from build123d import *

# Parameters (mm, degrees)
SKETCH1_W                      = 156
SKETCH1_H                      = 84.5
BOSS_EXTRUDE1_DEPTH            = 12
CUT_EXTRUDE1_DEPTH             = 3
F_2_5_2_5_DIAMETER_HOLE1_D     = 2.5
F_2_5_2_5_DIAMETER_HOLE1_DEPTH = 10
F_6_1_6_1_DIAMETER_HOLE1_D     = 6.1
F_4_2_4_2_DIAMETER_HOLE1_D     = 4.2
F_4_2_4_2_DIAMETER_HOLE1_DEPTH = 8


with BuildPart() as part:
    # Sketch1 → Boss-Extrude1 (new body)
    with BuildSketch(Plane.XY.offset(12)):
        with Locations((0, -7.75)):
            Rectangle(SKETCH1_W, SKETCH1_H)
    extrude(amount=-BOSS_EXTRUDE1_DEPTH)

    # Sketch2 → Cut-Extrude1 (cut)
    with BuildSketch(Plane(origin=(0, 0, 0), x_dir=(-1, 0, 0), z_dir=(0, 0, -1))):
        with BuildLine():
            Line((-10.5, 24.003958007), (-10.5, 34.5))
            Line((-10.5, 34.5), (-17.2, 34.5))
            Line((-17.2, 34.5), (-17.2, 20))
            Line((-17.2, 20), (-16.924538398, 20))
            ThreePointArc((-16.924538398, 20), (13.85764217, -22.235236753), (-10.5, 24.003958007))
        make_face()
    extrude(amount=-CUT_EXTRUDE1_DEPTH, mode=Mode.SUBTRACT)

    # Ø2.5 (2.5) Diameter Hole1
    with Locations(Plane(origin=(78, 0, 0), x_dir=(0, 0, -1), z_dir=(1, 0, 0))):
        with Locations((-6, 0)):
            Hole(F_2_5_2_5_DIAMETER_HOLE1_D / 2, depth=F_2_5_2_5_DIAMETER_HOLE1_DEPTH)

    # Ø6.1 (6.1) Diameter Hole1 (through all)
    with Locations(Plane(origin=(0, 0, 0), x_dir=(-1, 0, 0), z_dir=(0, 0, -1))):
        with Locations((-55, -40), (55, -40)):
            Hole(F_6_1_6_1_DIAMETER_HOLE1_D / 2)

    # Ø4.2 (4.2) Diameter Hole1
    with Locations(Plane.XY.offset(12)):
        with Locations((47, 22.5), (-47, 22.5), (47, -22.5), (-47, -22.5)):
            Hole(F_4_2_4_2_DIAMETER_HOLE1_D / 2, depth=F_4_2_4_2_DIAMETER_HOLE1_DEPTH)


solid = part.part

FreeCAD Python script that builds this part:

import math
import FreeCAD as App
import Part
import Sketcher
from FreeCAD import Vector

doc = App.newDocument("Part")
body = doc.addObject("PartDesign::Body", "Body")

# Sketch on XY plane
sketch1 = body.newObject("Sketcher::SketchObject", "Sketch")
sketch1.AttachmentSupport = (doc.getObject("XY_Plane"), [""])
sketch1.MapMode = "FlatFace"
sketch1.AttachmentOffset = App.Placement(Vector(0, 0, 12), App.Rotation())
sketch1.addGeometry([
    Part.LineSegment(Vector(-78, 34, 0), Vector(-78, -50, 0)),
    Part.LineSegment(Vector(-78, -50, 0), Vector(78, -50, 0)),
    Part.LineSegment(Vector(78, -50, 0), Vector(78, 34, 0)),
    Part.LineSegment(Vector(78, 34, 0), Vector(-78, 34, 0)),
], False)
sketch1.addConstraint([
    Sketcher.Constraint("Coincident", 0, 2, 1, 1),
    Sketcher.Constraint("Coincident", 1, 2, 2, 1),
    Sketcher.Constraint("Coincident", 2, 2, 3, 1),
    Sketcher.Constraint("Coincident", 3, 2, 0, 1),
    Sketcher.Constraint("Vertical", 0),
    Sketcher.Constraint("Horizontal", 1),
    Sketcher.Constraint("Vertical", 2),
    Sketcher.Constraint("Horizontal", 3),
    Sketcher.Constraint("DistanceX", 1, 1, 1, 2, 156.0),
    Sketcher.Constraint("DistanceY", 0, 2, 0, 1, 84.5),
    Sketcher.Constraint("DistanceX", 0, 2, -1, 1, 78.0),
    Sketcher.Constraint("DistanceY", 0, 2, -1, 1, 50.0),
])
pad1 = body.newObject("PartDesign::Pad", "Pad")
pad1.Profile = sketch1
pad1.Length = 12
pad1.Reversed = True

# Sketch on XY plane
sketch2 = body.newObject("Sketcher::SketchObject", "Sketch001")
sketch2.AttachmentSupport = (doc.getObject("XY_Plane"), [""])
sketch2.MapMode = "FlatFace"
sketch2.addGeometry([
    Part.LineSegment(Vector(10.5, 24, 0), Vector(10.5, 34.5, 0)),  # 0
    Part.LineSegment(Vector(10.5, 34.5, 0), Vector(17.2, 34.5, 0)),  # 1
    Part.LineSegment(Vector(17.2, 34.5, 0), Vector(17.2, 20, 0)),  # 2
    Part.LineSegment(Vector(17.2, 20, 0), Vector(16.92, 20, 0)),  # 3
    Part.ArcOfCircle(Part.Circle(Vector(0, 0, 0), Vector(0, 0, 1), 26.2), math.radians(66), math.radians(410)),  # 4
], False)
sketch2.addConstraint([
    Sketcher.Constraint("Coincident", 0, 2, 1, 1),
    Sketcher.Constraint("Coincident", 1, 2, 2, 1),
    Sketcher.Constraint("Coincident", 2, 2, 3, 1),
    Sketcher.Constraint("Coincident", 3, 2, 4, 2),
    Sketcher.Constraint("Coincident", 4, 1, 0, 1),
    Sketcher.Constraint("Vertical", 0),
    Sketcher.Constraint("Horizontal", 1),
    Sketcher.Constraint("Vertical", 2),
    Sketcher.Constraint("Horizontal", 3),
    Sketcher.Constraint("Coincident", 4, 3, -1, 1),
    Sketcher.Constraint("Radius", 4, 26.2),
    Sketcher.Constraint("DistanceX", 1, 1, 1, 2, 6.7),
    Sketcher.Constraint("DistanceY", 2, 2, 2, 1, 14.5),
    Sketcher.Constraint("DistanceY", -1, 1, 2, 2, 20.0),
    Sketcher.Constraint("DistanceX", -1, 1, 0, 2, 10.5),
])
pocket1 = body.newObject("PartDesign::Pocket", "Pocket")
pocket1.Profile = sketch2
pocket1.Length = 3
pocket1.Reversed = True

# Sketch on YZ plane
sketch3 = body.newObject("Sketcher::SketchObject", "Sketch002")
sketch3.AttachmentSupport = (doc.getObject("YZ_Plane"), [""])
sketch3.MapMode = "FlatFace"
sketch3.AttachmentOffset = App.Placement(Vector(0, 0, 78), App.Rotation())
sketch3.addGeometry(Part.Circle(Vector(0, 6, 0), Vector(0, 0, 1), 1.2), False)
sketch3.addConstraint([
    Sketcher.Constraint("PointOnObject", 0, 3, -2),
    Sketcher.Constraint("Diameter", 0, 2.5),
    Sketcher.Constraint("DistanceY", -1, 1, 0, 3, 6.0),
])
doc.recompute()
hole = body.newObject("PartDesign::Hole", "Hole")
hole.Profile = sketch3
hole.ThreadType = "None"
hole.Diameter = 2.5
hole.DepthType = "Dimension"
hole.Depth = 10
hole.DrillPoint = "Flat"

# Sketch on XY plane
sketch4 = body.newObject("Sketcher::SketchObject", "Sketch003")
sketch4.AttachmentSupport = (doc.getObject("XY_Plane"), [""])
sketch4.MapMode = "FlatFace"
sketch4.addGeometry([
    Part.Circle(Vector(55, -40, 0), Vector(0, 0, 1), 3),
    Part.Circle(Vector(-55, -40, 0), Vector(0, 0, 1), 3),
], False)
sketch4.addConstraint([
    Sketcher.Constraint("Equal", 0, 1),
    Sketcher.Constraint("Symmetric", 0, 3, 1, 3, -2),
    Sketcher.Constraint("Diameter", 0, 6.1),
    Sketcher.Constraint("DistanceX", -1, 1, 0, 3, 55.0),
    Sketcher.Constraint("DistanceY", 0, 3, -1, 1, 40.0),
])
doc.recompute()
hole2 = body.newObject("PartDesign::Hole", "Hole001")
hole2.Profile = sketch4
hole2.ThreadType = "None"
hole2.Diameter = 6.1
hole2.DepthType = "ThroughAll"
hole2.Reversed = True

# Sketch on XY plane
sketch5 = body.newObject("Sketcher::SketchObject", "Sketch004")
sketch5.AttachmentSupport = (doc.getObject("XY_Plane"), [""])
sketch5.MapMode = "FlatFace"
sketch5.AttachmentOffset = App.Placement(Vector(0, 0, 12), App.Rotation())
sketch5.addGeometry([
    Part.Circle(Vector(47, 22.5, 0), Vector(0, 0, 1), 2.1),
    Part.Circle(Vector(-47, 22.5, 0), Vector(0, 0, 1), 2.1),
    Part.Circle(Vector(47, -22.5, 0), Vector(0, 0, 1), 2.1),
    Part.Circle(Vector(-47, -22.5, 0), Vector(0, 0, 1), 2.1),
], False)
sketch5.addConstraint([
    Sketcher.Constraint("Equal", 0, 1),
    Sketcher.Constraint("Equal", 1, 2),
    Sketcher.Constraint("Equal", 2, 3),
    Sketcher.Constraint("Symmetric", 1, 3, 2, 3, -1, 1),
    Sketcher.Constraint("Symmetric", 0, 3, 3, 3, -1, 1),
    Sketcher.Constraint("Symmetric", 0, 3, 1, 3, -2),
    Sketcher.Constraint("Diameter", 0, 4.2),
    Sketcher.Constraint("DistanceX", -1, 1, 0, 3, 47.0),
    Sketcher.Constraint("DistanceY", 2, 3, 0, 3, 45.0),
])
doc.recompute()
hole3 = body.newObject("PartDesign::Hole", "Hole002")
hole3.Profile = sketch5
hole3.ThreadType = "None"
hole3.Diameter = 4.2
hole3.DepthType = "Dimension"
hole3.Depth = 8
hole3.DrillPoint = "Flat"

doc.recompute()
